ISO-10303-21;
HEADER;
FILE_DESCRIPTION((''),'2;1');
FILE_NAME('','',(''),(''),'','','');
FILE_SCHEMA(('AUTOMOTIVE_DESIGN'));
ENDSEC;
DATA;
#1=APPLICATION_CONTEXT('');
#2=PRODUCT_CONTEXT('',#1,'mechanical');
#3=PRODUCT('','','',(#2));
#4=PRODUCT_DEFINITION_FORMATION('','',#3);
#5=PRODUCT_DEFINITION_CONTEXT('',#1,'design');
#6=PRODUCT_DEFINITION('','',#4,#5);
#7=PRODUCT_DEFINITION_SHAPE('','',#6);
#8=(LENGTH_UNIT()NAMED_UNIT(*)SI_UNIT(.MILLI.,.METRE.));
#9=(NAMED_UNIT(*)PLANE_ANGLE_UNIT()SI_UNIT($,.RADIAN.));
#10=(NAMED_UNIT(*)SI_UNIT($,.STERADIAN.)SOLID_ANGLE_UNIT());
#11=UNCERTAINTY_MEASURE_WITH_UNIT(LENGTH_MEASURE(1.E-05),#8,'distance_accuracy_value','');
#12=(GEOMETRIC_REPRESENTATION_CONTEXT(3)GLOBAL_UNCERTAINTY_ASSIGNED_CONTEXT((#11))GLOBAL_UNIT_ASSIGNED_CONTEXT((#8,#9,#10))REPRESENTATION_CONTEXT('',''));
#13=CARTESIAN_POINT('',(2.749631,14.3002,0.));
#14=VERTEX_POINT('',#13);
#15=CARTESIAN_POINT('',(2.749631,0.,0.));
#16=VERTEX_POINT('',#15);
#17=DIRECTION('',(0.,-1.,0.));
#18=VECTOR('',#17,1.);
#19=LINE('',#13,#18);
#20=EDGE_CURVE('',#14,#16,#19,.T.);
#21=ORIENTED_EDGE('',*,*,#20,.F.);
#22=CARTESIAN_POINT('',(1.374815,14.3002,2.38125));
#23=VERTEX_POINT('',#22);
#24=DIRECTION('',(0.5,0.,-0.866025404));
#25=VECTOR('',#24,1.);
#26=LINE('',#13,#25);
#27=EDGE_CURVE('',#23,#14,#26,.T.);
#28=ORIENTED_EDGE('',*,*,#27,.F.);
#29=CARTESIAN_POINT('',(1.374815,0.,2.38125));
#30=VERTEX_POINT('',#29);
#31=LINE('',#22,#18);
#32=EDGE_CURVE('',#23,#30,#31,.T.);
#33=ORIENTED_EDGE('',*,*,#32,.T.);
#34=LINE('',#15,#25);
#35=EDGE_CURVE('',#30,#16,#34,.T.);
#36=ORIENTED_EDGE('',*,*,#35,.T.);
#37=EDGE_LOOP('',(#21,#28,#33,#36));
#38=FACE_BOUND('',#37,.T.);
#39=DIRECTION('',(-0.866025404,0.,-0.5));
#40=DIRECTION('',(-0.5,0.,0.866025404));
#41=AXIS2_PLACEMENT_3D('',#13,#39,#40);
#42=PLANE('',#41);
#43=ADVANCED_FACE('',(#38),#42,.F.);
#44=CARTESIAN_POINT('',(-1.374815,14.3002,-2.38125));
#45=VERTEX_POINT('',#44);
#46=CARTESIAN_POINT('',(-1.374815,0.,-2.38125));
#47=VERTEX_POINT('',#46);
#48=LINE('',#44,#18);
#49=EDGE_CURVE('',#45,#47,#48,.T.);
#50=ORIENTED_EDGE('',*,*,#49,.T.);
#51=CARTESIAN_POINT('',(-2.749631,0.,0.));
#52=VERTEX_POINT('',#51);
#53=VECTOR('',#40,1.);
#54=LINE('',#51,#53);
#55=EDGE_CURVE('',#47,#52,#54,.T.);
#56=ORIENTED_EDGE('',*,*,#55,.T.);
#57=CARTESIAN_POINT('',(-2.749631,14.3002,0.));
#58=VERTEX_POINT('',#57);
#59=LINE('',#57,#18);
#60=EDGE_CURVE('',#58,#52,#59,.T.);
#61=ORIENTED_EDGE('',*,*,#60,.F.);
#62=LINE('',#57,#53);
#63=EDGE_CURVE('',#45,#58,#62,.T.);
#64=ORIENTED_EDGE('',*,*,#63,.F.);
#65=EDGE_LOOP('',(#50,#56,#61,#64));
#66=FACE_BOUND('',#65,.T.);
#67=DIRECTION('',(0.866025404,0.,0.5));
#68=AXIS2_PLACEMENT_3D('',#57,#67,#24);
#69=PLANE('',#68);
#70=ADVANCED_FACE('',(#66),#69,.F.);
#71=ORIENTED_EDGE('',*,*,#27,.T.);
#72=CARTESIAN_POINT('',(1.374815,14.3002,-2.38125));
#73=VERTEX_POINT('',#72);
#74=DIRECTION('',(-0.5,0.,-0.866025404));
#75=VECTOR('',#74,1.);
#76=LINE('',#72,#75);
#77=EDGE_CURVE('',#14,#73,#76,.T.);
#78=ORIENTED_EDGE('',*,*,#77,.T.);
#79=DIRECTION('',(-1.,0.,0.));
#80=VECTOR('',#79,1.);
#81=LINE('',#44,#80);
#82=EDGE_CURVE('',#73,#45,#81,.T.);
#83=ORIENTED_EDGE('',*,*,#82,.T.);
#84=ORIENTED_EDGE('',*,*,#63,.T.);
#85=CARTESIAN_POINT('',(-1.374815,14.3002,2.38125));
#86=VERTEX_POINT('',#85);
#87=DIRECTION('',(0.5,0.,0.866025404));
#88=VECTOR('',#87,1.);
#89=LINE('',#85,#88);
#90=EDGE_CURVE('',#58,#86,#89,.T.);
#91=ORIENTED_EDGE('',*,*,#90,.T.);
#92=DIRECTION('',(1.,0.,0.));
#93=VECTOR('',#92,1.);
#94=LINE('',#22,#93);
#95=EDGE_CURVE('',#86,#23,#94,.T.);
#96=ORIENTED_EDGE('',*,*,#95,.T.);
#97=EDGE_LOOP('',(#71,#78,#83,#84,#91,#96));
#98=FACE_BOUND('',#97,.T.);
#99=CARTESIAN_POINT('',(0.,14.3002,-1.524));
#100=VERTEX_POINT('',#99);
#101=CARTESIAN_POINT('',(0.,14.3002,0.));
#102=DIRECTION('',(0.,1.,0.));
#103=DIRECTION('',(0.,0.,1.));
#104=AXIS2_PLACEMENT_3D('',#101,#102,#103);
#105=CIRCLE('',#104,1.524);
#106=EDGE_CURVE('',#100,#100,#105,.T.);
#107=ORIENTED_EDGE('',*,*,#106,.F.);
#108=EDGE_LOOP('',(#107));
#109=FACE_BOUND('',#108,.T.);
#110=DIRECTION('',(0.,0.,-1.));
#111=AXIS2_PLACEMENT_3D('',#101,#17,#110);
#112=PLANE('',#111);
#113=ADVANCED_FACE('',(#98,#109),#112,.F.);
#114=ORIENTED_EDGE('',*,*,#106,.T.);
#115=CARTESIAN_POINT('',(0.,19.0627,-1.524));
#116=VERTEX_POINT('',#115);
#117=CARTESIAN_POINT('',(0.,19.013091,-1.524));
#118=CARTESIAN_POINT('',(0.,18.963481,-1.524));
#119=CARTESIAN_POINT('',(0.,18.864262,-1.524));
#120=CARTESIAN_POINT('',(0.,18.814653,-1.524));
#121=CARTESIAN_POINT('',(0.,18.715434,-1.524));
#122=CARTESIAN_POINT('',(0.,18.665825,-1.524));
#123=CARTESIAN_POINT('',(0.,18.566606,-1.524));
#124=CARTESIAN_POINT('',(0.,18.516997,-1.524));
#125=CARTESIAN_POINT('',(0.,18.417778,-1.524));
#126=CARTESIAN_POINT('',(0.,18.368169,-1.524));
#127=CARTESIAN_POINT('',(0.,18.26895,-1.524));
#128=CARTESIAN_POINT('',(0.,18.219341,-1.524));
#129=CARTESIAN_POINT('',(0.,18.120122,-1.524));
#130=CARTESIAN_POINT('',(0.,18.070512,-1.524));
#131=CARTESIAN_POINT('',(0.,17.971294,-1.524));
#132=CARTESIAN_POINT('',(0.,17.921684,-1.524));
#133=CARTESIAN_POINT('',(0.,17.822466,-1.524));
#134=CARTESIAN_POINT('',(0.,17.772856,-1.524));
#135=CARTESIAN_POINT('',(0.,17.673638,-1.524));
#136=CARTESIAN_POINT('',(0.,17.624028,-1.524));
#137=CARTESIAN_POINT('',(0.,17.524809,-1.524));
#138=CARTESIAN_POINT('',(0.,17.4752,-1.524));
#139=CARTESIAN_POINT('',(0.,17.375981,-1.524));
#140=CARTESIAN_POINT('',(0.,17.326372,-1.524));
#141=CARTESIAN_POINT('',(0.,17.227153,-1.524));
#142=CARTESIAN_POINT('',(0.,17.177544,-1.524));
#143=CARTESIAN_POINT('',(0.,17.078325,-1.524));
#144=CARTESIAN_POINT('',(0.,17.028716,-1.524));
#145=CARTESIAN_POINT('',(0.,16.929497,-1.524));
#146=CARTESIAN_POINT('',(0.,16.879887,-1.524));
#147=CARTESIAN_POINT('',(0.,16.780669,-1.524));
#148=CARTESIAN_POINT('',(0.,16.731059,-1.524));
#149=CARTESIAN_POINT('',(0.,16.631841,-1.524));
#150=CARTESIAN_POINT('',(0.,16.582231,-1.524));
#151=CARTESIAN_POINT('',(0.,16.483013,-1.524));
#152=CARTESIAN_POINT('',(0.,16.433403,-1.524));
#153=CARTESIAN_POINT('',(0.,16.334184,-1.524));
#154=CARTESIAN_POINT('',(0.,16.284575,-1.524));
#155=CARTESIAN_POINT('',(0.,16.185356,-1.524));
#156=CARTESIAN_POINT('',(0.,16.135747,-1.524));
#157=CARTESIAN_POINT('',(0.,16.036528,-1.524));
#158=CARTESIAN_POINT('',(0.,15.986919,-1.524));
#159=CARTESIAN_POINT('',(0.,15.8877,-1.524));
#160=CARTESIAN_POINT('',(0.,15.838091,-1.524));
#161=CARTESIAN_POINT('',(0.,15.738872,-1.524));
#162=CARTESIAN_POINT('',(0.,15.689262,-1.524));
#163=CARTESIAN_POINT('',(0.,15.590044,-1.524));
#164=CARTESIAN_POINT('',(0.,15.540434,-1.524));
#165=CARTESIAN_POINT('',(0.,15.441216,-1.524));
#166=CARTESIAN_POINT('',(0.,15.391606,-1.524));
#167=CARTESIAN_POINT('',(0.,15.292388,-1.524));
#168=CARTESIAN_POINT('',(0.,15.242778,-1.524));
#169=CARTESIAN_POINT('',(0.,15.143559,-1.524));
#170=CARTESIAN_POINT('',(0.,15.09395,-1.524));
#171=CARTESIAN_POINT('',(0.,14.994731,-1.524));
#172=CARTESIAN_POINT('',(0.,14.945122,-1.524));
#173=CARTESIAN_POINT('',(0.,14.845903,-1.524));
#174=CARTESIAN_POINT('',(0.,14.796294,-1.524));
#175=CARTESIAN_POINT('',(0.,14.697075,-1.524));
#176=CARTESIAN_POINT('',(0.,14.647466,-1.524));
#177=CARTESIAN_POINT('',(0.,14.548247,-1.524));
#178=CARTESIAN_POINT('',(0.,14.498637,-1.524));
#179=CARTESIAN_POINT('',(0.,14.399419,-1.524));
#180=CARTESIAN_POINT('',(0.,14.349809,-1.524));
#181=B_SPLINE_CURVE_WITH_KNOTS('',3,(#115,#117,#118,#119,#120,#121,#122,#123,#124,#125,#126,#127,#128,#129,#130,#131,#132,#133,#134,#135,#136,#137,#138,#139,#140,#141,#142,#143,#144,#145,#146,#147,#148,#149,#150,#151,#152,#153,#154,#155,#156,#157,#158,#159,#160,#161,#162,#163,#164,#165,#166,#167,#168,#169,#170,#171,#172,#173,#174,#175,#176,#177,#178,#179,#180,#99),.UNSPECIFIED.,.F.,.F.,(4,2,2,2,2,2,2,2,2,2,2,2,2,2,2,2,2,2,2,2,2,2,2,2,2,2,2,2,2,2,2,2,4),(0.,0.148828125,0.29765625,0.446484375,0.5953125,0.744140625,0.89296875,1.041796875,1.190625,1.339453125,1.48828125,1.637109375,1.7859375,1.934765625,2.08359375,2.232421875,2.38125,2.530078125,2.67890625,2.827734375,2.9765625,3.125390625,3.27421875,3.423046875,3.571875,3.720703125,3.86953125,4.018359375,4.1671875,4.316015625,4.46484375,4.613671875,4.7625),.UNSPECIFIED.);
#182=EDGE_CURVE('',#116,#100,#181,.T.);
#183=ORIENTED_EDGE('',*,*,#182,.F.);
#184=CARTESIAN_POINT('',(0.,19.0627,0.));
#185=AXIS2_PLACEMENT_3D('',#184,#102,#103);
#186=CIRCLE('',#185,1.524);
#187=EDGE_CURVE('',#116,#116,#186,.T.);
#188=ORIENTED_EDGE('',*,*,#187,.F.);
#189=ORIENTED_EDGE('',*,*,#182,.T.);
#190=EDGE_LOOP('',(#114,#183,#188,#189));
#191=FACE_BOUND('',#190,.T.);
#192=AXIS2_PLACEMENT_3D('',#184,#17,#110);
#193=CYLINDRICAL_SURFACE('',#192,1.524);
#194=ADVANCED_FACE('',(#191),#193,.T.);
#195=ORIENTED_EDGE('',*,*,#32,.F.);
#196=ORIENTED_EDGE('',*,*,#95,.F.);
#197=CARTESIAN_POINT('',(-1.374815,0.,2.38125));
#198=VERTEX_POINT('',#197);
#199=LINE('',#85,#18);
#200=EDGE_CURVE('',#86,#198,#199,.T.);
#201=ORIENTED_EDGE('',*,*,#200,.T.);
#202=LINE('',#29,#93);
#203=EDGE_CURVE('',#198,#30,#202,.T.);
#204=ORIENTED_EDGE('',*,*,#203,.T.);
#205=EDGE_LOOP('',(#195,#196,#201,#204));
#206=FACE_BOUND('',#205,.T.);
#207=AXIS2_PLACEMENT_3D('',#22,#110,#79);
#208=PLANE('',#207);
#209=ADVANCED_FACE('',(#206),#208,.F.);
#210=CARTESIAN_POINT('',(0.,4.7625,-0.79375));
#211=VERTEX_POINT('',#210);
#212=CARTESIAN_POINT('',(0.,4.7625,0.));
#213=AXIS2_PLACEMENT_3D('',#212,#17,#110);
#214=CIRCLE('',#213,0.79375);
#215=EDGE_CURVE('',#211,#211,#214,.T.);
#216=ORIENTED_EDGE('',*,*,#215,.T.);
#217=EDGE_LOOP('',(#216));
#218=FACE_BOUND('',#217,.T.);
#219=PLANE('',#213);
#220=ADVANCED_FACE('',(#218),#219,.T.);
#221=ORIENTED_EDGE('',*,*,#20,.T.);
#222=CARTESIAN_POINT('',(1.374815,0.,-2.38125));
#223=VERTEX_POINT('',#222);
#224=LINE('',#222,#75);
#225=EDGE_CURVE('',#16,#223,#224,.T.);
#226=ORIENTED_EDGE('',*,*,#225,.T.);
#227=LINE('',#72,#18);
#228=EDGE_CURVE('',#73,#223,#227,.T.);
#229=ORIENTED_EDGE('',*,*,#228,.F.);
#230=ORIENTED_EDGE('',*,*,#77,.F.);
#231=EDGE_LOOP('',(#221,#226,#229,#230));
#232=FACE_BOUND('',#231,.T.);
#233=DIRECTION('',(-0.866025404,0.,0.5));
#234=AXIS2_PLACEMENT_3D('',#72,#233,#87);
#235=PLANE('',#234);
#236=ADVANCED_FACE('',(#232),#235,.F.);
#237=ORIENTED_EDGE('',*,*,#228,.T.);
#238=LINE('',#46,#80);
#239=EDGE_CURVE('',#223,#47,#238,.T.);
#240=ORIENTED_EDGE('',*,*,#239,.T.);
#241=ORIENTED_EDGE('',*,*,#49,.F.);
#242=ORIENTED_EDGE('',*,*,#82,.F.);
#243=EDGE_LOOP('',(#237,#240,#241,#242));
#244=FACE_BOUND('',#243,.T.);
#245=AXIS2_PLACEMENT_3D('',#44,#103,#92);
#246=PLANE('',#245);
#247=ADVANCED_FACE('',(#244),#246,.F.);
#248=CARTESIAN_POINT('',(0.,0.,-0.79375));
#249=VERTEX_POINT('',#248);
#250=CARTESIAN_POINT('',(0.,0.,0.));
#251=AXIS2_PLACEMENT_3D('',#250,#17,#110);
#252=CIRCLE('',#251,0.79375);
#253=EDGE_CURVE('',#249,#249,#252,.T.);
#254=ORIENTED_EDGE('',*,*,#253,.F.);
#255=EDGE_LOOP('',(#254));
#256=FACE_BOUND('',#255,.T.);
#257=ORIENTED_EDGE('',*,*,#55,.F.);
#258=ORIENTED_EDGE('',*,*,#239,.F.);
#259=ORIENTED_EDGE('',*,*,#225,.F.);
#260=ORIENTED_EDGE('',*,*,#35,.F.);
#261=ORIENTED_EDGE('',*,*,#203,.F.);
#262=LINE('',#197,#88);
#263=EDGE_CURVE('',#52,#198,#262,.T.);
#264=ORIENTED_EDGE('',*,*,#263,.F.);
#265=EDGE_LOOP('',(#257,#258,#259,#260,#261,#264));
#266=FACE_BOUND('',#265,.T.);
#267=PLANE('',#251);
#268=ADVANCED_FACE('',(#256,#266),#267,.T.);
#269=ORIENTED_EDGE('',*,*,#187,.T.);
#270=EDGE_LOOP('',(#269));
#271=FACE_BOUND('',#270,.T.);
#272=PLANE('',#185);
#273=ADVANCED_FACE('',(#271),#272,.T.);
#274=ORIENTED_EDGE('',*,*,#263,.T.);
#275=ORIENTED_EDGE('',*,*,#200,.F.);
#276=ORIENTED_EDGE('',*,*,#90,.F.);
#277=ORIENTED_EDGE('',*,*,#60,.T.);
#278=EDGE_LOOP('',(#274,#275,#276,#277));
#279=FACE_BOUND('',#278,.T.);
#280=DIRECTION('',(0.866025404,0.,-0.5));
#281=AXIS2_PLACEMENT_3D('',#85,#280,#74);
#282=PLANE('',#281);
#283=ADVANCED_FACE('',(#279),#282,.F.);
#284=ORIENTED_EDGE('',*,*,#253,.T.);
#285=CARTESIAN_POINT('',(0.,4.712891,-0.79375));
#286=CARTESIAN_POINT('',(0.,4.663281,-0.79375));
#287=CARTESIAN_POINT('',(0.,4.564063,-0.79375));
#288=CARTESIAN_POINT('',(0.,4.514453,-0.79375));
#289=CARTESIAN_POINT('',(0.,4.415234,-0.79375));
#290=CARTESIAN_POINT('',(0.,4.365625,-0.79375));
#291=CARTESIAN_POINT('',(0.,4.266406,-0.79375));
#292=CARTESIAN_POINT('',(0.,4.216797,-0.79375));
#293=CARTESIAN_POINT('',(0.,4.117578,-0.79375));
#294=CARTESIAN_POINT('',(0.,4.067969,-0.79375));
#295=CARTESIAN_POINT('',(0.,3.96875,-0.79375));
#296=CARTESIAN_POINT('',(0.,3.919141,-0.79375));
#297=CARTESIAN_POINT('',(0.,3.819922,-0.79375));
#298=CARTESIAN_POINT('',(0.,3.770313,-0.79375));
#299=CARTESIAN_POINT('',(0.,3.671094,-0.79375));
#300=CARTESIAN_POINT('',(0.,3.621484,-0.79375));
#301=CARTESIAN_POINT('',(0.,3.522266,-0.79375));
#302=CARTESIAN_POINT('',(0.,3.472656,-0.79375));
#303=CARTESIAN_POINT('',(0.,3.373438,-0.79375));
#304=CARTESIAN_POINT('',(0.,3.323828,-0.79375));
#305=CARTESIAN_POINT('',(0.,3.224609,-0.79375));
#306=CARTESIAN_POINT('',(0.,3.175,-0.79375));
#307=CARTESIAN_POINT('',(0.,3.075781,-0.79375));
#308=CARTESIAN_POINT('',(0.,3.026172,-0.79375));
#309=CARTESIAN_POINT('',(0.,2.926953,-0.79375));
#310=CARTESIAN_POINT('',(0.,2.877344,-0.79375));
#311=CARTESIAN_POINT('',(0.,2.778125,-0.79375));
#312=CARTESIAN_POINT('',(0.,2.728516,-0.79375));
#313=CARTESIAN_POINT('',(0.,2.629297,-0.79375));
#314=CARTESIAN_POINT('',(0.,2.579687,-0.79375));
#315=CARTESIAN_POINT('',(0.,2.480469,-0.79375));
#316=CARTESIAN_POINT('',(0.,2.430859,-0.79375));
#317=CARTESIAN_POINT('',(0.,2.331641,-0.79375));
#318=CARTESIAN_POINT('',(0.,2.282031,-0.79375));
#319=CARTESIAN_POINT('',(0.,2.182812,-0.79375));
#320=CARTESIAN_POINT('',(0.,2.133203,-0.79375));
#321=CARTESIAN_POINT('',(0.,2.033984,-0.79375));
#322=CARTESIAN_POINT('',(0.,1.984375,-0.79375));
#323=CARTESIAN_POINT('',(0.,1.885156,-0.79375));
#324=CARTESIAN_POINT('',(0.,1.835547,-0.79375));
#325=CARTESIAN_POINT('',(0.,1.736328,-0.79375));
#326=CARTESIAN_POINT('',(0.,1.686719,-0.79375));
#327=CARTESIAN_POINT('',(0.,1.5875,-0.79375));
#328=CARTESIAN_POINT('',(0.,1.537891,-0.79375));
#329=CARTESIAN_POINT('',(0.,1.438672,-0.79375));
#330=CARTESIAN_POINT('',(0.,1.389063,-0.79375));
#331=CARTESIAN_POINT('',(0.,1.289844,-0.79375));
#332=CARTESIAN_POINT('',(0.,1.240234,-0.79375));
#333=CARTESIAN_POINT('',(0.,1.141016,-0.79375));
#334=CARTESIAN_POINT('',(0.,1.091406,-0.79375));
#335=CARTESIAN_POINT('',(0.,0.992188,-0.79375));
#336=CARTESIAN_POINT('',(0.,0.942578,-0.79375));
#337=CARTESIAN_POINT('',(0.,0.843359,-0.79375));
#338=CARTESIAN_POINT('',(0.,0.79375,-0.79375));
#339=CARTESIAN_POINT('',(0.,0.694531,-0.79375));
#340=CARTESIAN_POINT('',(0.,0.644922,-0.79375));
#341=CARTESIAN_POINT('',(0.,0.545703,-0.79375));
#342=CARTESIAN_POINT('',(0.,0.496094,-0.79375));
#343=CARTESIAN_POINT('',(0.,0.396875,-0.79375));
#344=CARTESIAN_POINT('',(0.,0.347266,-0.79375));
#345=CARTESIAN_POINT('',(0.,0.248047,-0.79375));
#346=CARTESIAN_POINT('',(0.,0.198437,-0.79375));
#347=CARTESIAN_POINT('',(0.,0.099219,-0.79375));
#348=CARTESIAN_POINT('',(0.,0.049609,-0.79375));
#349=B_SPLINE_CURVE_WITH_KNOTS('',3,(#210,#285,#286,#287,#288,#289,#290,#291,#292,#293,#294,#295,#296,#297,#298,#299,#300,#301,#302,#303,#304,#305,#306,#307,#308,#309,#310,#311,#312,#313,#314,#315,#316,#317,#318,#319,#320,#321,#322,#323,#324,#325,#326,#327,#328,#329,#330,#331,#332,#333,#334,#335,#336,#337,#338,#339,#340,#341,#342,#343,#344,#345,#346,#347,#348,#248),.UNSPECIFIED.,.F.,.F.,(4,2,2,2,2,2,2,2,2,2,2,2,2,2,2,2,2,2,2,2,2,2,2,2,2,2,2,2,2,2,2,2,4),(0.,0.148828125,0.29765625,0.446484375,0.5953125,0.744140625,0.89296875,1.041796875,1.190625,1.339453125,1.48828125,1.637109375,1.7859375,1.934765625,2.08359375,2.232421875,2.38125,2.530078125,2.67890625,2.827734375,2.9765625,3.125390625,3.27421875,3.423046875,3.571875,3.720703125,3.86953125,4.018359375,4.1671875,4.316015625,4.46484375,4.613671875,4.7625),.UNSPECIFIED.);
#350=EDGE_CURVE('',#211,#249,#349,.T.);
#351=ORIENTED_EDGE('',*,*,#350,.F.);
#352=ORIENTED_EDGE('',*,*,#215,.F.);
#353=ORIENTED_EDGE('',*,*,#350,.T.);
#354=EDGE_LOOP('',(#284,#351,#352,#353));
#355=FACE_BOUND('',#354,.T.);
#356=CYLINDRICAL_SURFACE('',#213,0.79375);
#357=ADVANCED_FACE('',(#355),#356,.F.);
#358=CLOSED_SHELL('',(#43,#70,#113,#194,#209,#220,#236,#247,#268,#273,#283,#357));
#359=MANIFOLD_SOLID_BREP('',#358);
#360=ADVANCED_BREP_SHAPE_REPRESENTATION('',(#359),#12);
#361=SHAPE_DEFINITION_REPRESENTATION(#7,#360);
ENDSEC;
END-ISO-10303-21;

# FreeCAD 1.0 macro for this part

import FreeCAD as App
import Part
import Sketcher
Q = App.Units.Quantity

doc = App.newDocument("Part")
body = doc.addObject("PartDesign::Body", "Body")

# Sketch on XZ plane
sketch1 = body.newObject("Sketcher::SketchObject", "Sketch")
sketch1.AttachmentSupport = (doc.getObject("XZ_Plane"), [""])
sketch1.MapMode = "FlatFace"
sketch1.addGeometry([
    Part.LineSegment(App.Vector(1.374815, -2.38125, 0), App.Vector(-1.374815, -2.38125, 0)),  # 0
    Part.LineSegment(App.Vector(-1.374815, -2.38125, 0), App.Vector(-2.749631, 0, 0)),  # 1
    Part.LineSegment(App.Vector(-2.749631, 0, 0), App.Vector(-1.374815, 2.38125, 0)),  # 2
    Part.LineSegment(App.Vector(-1.374815, 2.38125, 0), App.Vector(1.374815, 2.38125, 0)),  # 3
    Part.LineSegment(App.Vector(1.374815, 2.38125, 0), App.Vector(2.749631, 0, 0)),  # 4
    Part.LineSegment(App.Vector(2.749631, 0, 0), App.Vector(1.374815, -2.38125, 0)),  # 5
], False)
sketch1.addConstraint([
    Sketcher.Constraint("Coincident", 0, 2, 1, 1),
    Sketcher.Constraint("Coincident", 1, 2, 2, 1),
    Sketcher.Constraint("Coincident", 2, 2, 3, 1),
    Sketcher.Constraint("Coincident", 3, 2, 4, 1),
    Sketcher.Constraint("Coincident", 4, 2, 5, 1),
    Sketcher.Constraint("Coincident", 5, 2, 0, 1),
    Sketcher.Constraint("Horizontal", 0),
    Sketcher.Constraint("Horizontal", 3),
    Sketcher.Constraint("Symmetric", 0, 2, 3, 2, -1, 1),
    Sketcher.Constraint("Symmetric", 1, 2, 4, 2, -1, 1),
    Sketcher.Constraint("PointOnObject", 1, 2, -1),
    Sketcher.Constraint("Parallel", 2, 5),
    Sketcher.Constraint("Vertical", 0, 2, 2, 2),
    Sketcher.Constraint("Angle", 1, Q("120 deg")),
    Sketcher.Constraint("DistanceY", 0, 2, -1, 1, Q("0.09375 in")),
    Sketcher.Constraint("DistanceX", 0, 2, 0, 1, 2.749631),
])
pad1 = body.newObject("PartDesign::Pad", "Pad")
pad1.Profile = sketch1
pad1.Length = Q("0.563 in")
pad1.Reversed = True

# Sketch on XZ plane
sketch2 = body.newObject("Sketcher::SketchObject", "Sketch001")
sketch2.AttachmentSupport = (doc.getObject("XZ_Plane"), [""])
sketch2.MapMode = "FlatFace"
sketch2.AttachmentOffset = App.Placement(App.Vector(0, 0, -0.563 * 25.4), App.Rotation())
sketch2.addGeometry(Part.Circle(App.Vector(0, 0, 0), App.Vector(0, 0, 1), 1.524), False)
sketch2.addConstraint([
    Sketcher.Constraint("Coincident", 0, 3, -1, 1),
    Sketcher.Constraint("Diameter", 0, Q("0.12 in")),
])
pad2 = body.newObject("PartDesign::Pad", "Pad001")
pad2.Profile = sketch2
pad2.Length = Q("0.1875 in")
pad2.Reversed = True

# Sketch on XZ plane
sketch3 = body.newObject("Sketcher::SketchObject", "Sketch002")
sketch3.AttachmentSupport = (doc.getObject("XZ_Plane"), [""])
sketch3.MapMode = "FlatFace"
sketch3.addGeometry(Part.Circle(App.Vector(0, 0, 0), App.Vector(0, 0, 1), 0.79375), False)
sketch3.addConstraint([
    Sketcher.Constraint("Coincident", 0, 3, -1, 1),
    Sketcher.Constraint("Diameter", 0, Q("0.0625 in")),
])
pocket1 = body.newObject("PartDesign::Pocket", "Pocket")
pocket1.Profile = sketch3
pocket1.Length = Q("0.1875 in")

doc.recompute()
